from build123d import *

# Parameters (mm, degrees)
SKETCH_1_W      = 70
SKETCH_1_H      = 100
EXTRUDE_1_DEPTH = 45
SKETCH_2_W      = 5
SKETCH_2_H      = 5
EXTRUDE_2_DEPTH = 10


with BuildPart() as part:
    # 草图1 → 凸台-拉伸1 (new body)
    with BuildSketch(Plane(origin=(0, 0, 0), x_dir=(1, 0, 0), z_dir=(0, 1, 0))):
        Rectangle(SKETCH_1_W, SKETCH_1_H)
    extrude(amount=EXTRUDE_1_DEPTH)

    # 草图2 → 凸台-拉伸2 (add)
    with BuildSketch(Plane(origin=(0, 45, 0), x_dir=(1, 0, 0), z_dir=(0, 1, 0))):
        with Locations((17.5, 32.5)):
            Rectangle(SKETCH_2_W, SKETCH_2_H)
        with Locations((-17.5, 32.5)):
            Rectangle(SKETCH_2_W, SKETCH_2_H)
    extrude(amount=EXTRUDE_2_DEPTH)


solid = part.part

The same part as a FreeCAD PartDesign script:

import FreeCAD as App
import Part
import Sketcher

V = App.Vector
Q = App.Units.Quantity

doc = App.newDocument("Part")
body = doc.addObject("PartDesign::Body", "Body")

sketch1 = body.newObject("Sketcher::SketchObject", "Sketch")
sketch1.AttachmentSupport = (doc.getObject("XZ_Plane"), [""])
sketch1.MapMode = "FlatFace"
sketch1.addGeometry([
    Part.LineSegment(V(-35, -50, 0), V(-35, 50, 0)),
    Part.LineSegment(V(-35, 50, 0), V(35, 50, 0)),
    Part.LineSegment(V(35, 50, 0), V(35, -50, 0)),
    Part.LineSegment(V(35, -50, 0), V(-35, -50, 0)),
], False)
sketch1.addConstraint([
    Sketcher.Constraint("Coincident", 0, 2, 1, 1),
    Sketcher.Constraint("Coincident", 1, 2, 2, 1),
    Sketcher.Constraint("Coincident", 2, 2, 3, 1),
    Sketcher.Constraint("Coincident", 3, 2, 0, 1),
    Sketcher.Constraint("Vertical", 0),
    Sketcher.Constraint("Horizontal", 1),
    Sketcher.Constraint("Vertical", 2),
    Sketcher.Constraint("Horizontal", 3),
    Sketcher.Constraint("Symmetric", 0, 2, 2, 2, -1, 1),
    Sketcher.Constraint("DistanceX", 1, 1, 1, 2, Q("70 mm")),
    Sketcher.Constraint("DistanceY", 0, 1, 0, 2, Q("100 mm")),
])
pad1 = body.newObject("PartDesign::Pad", "Pad")
pad1.Profile = sketch1
pad1.Length = 45
pad1.Reversed = True

sketch2 = body.newObject("Sketcher::SketchObject", "Sketch001")
sketch2.AttachmentSupport = (doc.getObject("XZ_Plane"), [""])
sketch2.MapMode = "FlatFace"
sketch2.AttachmentOffset = App.Placement(V(0, 0, -45), App.Rotation())
sketch2.addGeometry([
    Part.LineSegment(V(15, -35, 0), V(15, -30, 0)),
    Part.LineSegment(V(15, -30, 0), V(20, -30, 0)),
    Part.LineSegment(V(20, -30, 0), V(20, -35, 0)),
    Part.LineSegment(V(20, -35, 0), V(15, -35, 0)),
    Part.LineSegment(V(-20, -35, 0), V(-20, -30, 0)),
    Part.LineSegment(V(-20, -30, 0), V(-15, -30, 0)),
    Part.LineSegment(V(-15, -30, 0), V(-15, -35, 0)),
    Part.LineSegment(V(-15, -35, 0), V(-20, -35, 0)),
], False)
sketch2.addConstraint([
    Sketcher.Constraint("Coincident", 0, 2, 1, 1),
    Sketcher.Constraint("Coincident", 1, 2, 2, 1),
    Sketcher.Constraint("Coincident", 2, 2, 3, 1),
    Sketcher.Constraint("Coincident", 3, 2, 0, 1),
    Sketcher.Constraint("Coincident", 4, 2, 5, 1),
    Sketcher.Constraint("Coincident", 5, 2, 6, 1),
    Sketcher.Constraint("Coincident", 6, 2, 7, 1),
    Sketcher.Constraint("Coincident", 7, 2, 4, 1),
    Sketcher.Constraint("Vertical", 0),
    Sketcher.Constraint("Horizontal", 1),
    Sketcher.Constraint("Vertical", 2),
    Sketcher.Constraint("Horizontal", 3),
    Sketcher.Constraint("Vertical", 4),
    Sketcher.Constraint("Horizontal", 5),
    Sketcher.Constraint("Vertical", 6),
    Sketcher.Constraint("Horizontal", 7),
    Sketcher.Constraint("Symmetric", 1, 2, 4, 2, -2),
    Sketcher.Constraint("Symmetric", 3, 2, 6, 2, -2),
    Sketcher.Constraint("Equal", 7, 0),
    Sketcher.Constraint("DistanceX", 1, 1, 1, 2, Q("5 mm")),
    Sketcher.Constraint("DistanceX", -1, 1, 0, 2, Q("15 mm")),
    Sketcher.Constraint("DistanceY", 0, 2, -1, 1, Q("30 mm")),
])
pad2 = body.newObject("PartDesign::Pad", "Pad001")
pad2.Profile = sketch2
pad2.Length = 10
pad2.Reversed = True

doc.recompute()
